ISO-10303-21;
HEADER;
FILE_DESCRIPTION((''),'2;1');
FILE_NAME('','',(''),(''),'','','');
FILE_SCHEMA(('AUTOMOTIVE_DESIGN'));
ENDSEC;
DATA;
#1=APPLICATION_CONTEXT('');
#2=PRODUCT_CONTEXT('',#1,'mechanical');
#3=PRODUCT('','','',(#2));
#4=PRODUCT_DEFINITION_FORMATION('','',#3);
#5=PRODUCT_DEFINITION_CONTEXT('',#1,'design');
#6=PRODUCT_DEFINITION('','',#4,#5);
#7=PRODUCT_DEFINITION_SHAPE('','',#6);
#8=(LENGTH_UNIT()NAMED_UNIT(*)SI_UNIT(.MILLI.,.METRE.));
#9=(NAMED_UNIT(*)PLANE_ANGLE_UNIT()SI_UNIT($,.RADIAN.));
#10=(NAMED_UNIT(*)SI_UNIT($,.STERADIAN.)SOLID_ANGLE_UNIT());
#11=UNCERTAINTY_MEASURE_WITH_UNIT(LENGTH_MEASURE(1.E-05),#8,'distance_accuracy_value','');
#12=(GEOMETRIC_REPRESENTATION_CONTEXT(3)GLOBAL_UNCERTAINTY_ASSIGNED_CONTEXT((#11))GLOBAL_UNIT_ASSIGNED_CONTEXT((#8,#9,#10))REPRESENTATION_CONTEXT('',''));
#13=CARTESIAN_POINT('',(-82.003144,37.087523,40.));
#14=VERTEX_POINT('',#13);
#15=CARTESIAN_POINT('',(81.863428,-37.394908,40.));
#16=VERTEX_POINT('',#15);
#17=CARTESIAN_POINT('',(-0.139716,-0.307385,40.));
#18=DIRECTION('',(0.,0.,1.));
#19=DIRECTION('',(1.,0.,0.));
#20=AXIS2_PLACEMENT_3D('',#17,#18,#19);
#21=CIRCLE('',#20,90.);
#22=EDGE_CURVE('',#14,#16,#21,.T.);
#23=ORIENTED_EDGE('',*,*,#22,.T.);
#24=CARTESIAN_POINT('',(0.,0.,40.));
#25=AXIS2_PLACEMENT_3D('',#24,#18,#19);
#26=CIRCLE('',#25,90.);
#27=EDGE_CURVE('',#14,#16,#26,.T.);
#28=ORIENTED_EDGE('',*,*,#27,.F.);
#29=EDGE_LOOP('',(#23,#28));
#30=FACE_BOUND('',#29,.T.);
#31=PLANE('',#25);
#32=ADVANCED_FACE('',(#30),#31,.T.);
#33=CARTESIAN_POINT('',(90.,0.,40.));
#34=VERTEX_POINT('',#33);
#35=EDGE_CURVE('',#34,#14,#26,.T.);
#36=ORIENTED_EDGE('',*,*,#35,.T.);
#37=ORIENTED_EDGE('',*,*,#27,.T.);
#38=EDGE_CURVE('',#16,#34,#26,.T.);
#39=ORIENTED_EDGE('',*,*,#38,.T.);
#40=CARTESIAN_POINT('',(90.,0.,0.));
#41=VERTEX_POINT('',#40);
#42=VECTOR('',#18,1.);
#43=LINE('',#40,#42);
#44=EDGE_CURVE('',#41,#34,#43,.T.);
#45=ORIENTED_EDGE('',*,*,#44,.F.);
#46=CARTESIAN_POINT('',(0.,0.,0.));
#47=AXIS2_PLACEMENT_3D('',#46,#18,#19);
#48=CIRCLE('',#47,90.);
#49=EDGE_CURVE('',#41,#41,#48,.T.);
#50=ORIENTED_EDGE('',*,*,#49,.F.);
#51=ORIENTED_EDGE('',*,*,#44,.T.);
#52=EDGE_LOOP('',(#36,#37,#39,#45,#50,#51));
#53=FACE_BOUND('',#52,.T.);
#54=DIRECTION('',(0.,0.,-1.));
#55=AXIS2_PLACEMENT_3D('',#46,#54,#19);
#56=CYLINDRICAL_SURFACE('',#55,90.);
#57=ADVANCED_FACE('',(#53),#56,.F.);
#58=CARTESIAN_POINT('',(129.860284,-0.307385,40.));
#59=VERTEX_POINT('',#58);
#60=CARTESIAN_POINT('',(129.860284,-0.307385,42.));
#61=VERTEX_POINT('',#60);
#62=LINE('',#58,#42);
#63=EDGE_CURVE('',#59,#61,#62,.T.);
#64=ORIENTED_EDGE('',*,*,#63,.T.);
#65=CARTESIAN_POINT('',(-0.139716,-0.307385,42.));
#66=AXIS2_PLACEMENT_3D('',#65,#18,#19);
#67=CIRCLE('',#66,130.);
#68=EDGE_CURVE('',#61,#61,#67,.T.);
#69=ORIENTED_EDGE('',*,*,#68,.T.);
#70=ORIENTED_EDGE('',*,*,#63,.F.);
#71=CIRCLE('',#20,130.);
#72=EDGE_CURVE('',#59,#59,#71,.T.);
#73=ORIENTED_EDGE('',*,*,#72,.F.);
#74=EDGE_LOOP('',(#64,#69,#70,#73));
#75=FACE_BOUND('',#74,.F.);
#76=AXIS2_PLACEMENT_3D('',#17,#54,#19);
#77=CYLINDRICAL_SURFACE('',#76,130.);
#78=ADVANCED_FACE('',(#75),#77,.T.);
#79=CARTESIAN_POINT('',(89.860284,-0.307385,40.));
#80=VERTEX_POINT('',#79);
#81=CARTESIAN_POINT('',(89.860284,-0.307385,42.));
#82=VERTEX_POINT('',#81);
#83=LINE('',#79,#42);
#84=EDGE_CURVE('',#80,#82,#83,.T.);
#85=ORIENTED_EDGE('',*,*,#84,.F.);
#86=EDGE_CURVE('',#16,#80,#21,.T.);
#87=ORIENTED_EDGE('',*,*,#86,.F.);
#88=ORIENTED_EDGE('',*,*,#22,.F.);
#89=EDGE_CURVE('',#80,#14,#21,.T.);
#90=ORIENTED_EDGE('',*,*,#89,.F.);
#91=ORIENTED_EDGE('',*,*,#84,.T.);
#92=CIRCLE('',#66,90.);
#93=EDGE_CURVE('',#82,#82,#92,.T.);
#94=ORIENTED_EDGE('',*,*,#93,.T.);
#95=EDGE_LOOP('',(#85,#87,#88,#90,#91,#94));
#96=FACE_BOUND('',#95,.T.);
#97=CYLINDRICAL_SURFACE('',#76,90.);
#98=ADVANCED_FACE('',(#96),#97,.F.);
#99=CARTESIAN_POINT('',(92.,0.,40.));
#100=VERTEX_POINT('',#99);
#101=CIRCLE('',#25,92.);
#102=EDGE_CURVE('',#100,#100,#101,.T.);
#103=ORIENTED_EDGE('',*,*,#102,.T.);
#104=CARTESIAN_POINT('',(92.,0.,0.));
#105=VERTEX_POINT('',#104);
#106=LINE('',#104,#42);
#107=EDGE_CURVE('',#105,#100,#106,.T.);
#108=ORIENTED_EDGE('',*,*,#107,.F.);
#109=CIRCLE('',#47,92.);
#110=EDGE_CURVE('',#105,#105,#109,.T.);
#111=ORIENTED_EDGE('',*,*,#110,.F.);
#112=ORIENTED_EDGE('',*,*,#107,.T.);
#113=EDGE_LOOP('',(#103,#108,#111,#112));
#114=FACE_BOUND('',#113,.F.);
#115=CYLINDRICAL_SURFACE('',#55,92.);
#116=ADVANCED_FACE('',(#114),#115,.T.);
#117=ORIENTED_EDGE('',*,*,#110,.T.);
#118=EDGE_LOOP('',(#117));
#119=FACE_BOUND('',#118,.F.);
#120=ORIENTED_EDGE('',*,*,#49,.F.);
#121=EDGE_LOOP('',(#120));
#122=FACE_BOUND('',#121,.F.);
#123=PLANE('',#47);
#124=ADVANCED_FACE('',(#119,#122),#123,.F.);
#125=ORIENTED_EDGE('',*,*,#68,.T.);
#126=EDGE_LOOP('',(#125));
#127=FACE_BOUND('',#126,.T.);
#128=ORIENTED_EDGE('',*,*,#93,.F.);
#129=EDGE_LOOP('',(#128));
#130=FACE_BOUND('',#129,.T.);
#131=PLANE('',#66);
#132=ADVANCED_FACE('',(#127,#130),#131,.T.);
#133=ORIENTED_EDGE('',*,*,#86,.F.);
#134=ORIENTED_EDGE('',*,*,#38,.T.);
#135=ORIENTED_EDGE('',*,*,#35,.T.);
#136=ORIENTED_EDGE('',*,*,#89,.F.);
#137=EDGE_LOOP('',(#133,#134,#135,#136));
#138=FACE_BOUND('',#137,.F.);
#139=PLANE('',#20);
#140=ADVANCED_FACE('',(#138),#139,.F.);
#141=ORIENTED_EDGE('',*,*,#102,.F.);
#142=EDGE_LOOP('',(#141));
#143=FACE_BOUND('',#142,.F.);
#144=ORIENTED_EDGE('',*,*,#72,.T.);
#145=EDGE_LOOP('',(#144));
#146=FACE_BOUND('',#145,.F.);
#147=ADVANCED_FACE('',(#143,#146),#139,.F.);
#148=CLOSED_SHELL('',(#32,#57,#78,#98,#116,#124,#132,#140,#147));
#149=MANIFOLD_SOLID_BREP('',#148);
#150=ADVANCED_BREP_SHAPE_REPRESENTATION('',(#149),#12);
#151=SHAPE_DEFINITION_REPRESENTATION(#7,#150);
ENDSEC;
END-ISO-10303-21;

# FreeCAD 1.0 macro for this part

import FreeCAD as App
import Part
import Sketcher

V = App.Vector
Q = App.Units.Quantity

doc = App.newDocument("Part")
body = doc.addObject("PartDesign::Body", "Body")

# Sketch on XY plane
sketch1 = body.newObject("Sketcher::SketchObject", "Sketch")
sketch1.AttachmentSupport = (doc.getObject("XY_Plane"), [""])
sketch1.MapMode = "FlatFace"
sketch1.addGeometry(Part.Circle(V(0, 0, 0), V(0, 0, 1), 92), False)
sketch1.addGeometry(Part.Circle(V(0, 0, 0), V(0, 0, 1), 90), False)
sketch1.addConstraint(Sketcher.Constraint("Coincident", 0, 3, -1, 1))
sketch1.addConstraint(Sketcher.Constraint("Coincident", 1, 3, -1, 1))
sketch1.addConstraint(Sketcher.Constraint("Diameter", 0, Q("184 mm")))
sketch1.addConstraint(Sketcher.Constraint("Diameter", 1, Q("180 mm")))
pad1 = body.newObject("PartDesign::Pad", "Pad")
pad1.Profile = sketch1
pad1.Length = 40

# Sketch on XY plane
sketch2 = body.newObject("Sketcher::SketchObject", "Sketch001")
sketch2.AttachmentSupport = (doc.getObject("XY_Plane"), [""])
sketch2.MapMode = "FlatFace"
sketch2.AttachmentOffset = App.Placement(V(0, 0, 40), App.Rotation())
sketch2.addGeometry(Part.Circle(V(0, 0, 0), V(0, 0, 1), 130), False)
sketch2.addGeometry(Part.Circle(V(0, 0, 0), V(0, 0, 1), 90), False)
sketch2.addConstraint(Sketcher.Constraint("Coincident", 1, 3, 0, 3))
sketch2.addConstraint(Sketcher.Constraint("Diameter", 0, Q("260 mm")))
sketch2.addConstraint(Sketcher.Constraint("Diameter", 1, Q("180 mm")))
sketch2.addConstraint(Sketcher.Constraint("DistanceX", 0, 3, -1, 1, Q("0.139716 mm")))
sketch2.addConstraint(Sketcher.Constraint("DistanceY", 0, 3, -1, 1, Q("0.307385 mm")))
pad2 = body.newObject("PartDesign::Pad", "Pad001")
pad2.Profile = sketch2
pad2.Length = 2

doc.recompute()
